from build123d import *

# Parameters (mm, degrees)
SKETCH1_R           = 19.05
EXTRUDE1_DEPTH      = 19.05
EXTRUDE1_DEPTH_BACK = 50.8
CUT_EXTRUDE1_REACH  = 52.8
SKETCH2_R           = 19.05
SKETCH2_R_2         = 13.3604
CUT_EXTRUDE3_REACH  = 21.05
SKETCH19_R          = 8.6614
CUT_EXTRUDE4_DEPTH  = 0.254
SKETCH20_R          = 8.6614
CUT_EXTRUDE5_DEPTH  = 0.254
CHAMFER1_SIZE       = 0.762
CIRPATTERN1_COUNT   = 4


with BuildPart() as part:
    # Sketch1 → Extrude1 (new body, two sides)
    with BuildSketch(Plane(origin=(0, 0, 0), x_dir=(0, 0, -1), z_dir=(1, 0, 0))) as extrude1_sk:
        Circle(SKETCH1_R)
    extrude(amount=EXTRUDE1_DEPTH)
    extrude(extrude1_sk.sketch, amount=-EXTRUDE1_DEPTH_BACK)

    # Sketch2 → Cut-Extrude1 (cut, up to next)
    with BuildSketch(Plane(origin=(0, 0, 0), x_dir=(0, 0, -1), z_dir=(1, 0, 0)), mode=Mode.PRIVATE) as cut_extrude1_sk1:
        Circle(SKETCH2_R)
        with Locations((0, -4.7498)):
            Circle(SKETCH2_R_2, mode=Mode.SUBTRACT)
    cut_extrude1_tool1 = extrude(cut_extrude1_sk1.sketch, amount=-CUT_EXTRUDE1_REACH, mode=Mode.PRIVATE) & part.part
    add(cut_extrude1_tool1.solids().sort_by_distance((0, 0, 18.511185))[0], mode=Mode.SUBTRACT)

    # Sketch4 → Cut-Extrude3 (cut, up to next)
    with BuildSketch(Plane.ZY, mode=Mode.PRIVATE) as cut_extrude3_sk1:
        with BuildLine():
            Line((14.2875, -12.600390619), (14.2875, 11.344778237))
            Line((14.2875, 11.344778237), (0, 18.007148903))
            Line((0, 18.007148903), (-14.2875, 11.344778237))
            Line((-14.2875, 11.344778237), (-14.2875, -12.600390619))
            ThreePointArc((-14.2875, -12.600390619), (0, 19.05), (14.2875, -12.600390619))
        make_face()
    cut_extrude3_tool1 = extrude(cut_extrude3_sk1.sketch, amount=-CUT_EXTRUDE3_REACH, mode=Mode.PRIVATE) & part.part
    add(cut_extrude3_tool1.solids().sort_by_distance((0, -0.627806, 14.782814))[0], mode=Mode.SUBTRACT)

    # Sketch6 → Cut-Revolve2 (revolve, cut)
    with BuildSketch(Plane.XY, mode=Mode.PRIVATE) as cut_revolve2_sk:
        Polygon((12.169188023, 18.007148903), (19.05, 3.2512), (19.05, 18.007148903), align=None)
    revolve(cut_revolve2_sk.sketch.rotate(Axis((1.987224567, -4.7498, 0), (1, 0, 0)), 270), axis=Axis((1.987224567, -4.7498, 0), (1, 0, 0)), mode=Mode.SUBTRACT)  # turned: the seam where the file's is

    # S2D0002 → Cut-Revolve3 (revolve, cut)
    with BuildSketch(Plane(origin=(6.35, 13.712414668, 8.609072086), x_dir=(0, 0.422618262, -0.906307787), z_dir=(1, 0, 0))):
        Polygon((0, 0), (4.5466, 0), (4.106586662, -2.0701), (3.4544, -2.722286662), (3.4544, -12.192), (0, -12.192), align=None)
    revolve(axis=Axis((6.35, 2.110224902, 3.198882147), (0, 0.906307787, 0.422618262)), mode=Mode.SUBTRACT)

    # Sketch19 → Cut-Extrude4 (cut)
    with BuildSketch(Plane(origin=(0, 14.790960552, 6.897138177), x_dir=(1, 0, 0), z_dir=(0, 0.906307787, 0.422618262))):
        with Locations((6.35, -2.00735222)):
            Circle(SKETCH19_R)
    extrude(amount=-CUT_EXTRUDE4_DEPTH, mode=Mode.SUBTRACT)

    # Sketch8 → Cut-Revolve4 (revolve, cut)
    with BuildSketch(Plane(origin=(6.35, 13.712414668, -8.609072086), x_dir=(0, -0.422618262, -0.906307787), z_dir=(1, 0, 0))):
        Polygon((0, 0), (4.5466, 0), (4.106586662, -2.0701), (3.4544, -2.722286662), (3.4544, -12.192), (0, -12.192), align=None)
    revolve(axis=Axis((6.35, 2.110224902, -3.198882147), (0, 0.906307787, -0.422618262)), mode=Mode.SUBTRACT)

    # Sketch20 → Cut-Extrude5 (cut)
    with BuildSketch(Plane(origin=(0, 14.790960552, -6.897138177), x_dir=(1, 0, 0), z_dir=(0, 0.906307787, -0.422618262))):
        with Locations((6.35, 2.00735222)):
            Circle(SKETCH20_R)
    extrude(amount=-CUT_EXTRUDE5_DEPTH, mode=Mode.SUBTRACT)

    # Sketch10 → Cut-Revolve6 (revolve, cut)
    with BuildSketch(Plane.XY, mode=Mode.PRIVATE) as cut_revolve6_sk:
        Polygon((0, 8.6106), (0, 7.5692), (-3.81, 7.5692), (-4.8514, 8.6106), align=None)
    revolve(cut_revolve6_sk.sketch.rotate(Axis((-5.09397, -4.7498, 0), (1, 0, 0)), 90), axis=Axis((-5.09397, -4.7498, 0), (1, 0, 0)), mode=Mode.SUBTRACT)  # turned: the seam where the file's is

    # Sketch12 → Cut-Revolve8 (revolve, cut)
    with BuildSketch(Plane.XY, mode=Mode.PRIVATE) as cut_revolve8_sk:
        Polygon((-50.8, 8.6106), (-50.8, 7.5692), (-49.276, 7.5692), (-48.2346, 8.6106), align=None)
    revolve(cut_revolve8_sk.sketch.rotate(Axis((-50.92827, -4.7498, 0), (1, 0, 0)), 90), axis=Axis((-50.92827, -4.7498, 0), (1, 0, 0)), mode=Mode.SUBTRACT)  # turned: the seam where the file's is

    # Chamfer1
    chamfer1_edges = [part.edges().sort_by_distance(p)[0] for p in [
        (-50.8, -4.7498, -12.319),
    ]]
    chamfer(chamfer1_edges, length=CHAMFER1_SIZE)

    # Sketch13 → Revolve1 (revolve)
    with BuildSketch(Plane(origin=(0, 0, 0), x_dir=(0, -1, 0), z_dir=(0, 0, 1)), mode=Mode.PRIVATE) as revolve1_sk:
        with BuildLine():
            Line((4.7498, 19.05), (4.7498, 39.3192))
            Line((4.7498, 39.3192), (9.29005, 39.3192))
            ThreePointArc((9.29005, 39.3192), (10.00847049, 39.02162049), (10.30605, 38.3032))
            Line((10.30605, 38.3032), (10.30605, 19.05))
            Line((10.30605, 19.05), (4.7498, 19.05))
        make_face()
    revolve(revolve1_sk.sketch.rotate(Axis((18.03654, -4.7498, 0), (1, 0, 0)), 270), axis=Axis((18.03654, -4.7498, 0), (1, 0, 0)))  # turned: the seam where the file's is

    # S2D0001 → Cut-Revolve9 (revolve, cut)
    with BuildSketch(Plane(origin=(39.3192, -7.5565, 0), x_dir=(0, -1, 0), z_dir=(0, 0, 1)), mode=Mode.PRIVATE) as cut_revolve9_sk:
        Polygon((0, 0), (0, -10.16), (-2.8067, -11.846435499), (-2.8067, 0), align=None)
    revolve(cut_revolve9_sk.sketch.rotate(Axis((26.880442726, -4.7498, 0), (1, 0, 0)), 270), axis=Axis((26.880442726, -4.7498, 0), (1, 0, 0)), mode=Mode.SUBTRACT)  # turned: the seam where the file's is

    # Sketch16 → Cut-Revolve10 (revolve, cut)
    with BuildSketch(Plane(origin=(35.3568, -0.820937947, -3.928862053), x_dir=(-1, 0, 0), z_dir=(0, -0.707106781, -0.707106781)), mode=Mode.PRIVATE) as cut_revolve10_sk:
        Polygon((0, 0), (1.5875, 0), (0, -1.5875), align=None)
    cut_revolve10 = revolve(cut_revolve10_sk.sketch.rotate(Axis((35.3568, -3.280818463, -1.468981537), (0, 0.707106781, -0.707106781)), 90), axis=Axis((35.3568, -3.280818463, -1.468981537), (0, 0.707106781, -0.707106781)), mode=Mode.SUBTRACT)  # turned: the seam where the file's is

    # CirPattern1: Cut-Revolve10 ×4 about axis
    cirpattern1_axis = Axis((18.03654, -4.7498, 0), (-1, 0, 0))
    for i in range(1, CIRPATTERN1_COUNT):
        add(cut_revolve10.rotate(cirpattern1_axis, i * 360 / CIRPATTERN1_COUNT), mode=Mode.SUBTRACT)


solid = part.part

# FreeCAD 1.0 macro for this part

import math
import FreeCAD as App
import Part
import Sketcher
Q = App.Units.Quantity


def edges_at(feature, points):
    """Names of the edges that pass closest to the given points."""
    edges = feature.Shape.Edges
    near = lambda p: min(range(len(edges)), key=lambda i: edges[i].distToShape(Part.Vertex(*p))[0])
    return sorted({f"Edge{near(p) + 1}" for p in points})


def add_polygon(sketch, points):
    """Adds a closed chain of lines whose ends are joined by coincident constraints."""
    first, n = sketch.GeometryCount, len(points)
    for a, b in zip(points, points[1:] + points[:1]):
        sketch.addGeometry(Part.LineSegment(App.Vector(*a, 0), App.Vector(*b, 0)), False)
    for i in range(n):
        sketch.addConstraint(Sketcher.Constraint("Coincident", first + i, 2, first + (i + 1) % n, 1))

doc = App.newDocument("Part")
body = doc.addObject("PartDesign::Body", "Body")

# Sketch on YZ plane
sketch1 = body.newObject("Sketcher::SketchObject", "Sketch")
sketch1.AttachmentSupport = (doc.getObject("YZ_Plane"), [""])
sketch1.MapMode = "FlatFace"
sketch1.addGeometry(Part.Circle(App.Vector(0, 0, 0), App.Vector(0, 0, 1), 19.05), False)
sketch1.addConstraint([
    Sketcher.Constraint("Coincident", 0, 3, -1, 1),
    Sketcher.Constraint("Diameter", 0, Q("1.5 in")),
])
pad1 = body.newObject("PartDesign::Pad", "Pad")
pad1.Profile = sketch1
pad1.Type = "TwoLengths"
pad1.Length = Q("0.75 in")
pad1.Length2 = Q("2 in")

# Sketch on YZ plane
sketch2 = body.newObject("Sketcher::SketchObject", "Sketch001")
sketch2.AttachmentSupport = (doc.getObject("YZ_Plane"), [""])
sketch2.MapMode = "FlatFace"
sketch2.addGeometry([
    Part.Circle(App.Vector(0, 0, 0), App.Vector(0, 0, 1), 19.05),
    Part.Circle(App.Vector(-4.7498, 0, 0), App.Vector(0, 0, 1), 13.3604),
], False)
sketch2.addConstraint([
    Sketcher.Constraint("Coincident", 0, 3, -1, 1),
    Sketcher.Constraint("PointOnObject", 1, 3, -1),
    Sketcher.Constraint("Diameter", 0, Q("1.5 in")),
    Sketcher.Constraint("Diameter", 1, Q("1.052 in")),
    Sketcher.Constraint("DistanceX", 1, 3, -1, 1, Q("0.187 in")),
])
pocket1 = body.newObject("PartDesign::Pocket", "Pocket")
pocket1.Profile = sketch2
pocket1.Type = "UpToFirst"

# Sketch on YZ plane
sketch3 = body.newObject("Sketcher::SketchObject", "Sketch002")
sketch3.AttachmentSupport = (doc.getObject("YZ_Plane"), [""])
sketch3.MapMode = "FlatFace"
sketch3.addGeometry([
    Part.LineSegment(App.Vector(11.344778, 14.2875, 0), App.Vector(-12.600391, 14.2875, 0)),  # 0
    Part.ArcOfCircle(Part.Circle(App.Vector(0, 0, 0), App.Vector(0, 0, 1), 19.05), math.radians(-131.409622), math.radians(131.409622)),  # 1
    Part.LineSegment(App.Vector(-12.600391, -14.2875, 0), App.Vector(11.344778, -14.2875, 0)),  # 2
    Part.LineSegment(App.Vector(11.344778, -14.2875, 0), App.Vector(18.007149, 0, 0)),  # 3
    Part.LineSegment(App.Vector(18.007149, 0, 0), App.Vector(11.344778, 14.2875, 0)),  # 4
], False)
sketch3.addConstraint([
    Sketcher.Constraint("Coincident", 0, 2, 1, 2),
    Sketcher.Constraint("Coincident", 1, 1, 2, 1),
    Sketcher.Constraint("Coincident", 2, 2, 3, 1),
    Sketcher.Constraint("Coincident", 3, 2, 4, 1),
    Sketcher.Constraint("Coincident", 4, 2, 0, 1),
    Sketcher.Constraint("Horizontal", 0),
    Sketcher.Constraint("Horizontal", 2),
    Sketcher.Constraint("Coincident", 1, 3, -1, 1),
    Sketcher.Constraint("Symmetric", 2, 2, 4, 2, -1),
    Sketcher.Constraint("PointOnObject", 3, 2, -1),
    Sketcher.Constraint("Radius", 1, Q("0.75 in")),
    Sketcher.Constraint("Angle", 3, Q("65 deg")),
    Sketcher.Constraint("DistanceY", -1, 1, 0, 2, Q("0.5625 in")),
    Sketcher.Constraint("DistanceX", 0, 2, 0, 1, 23.945169),
])
pocket2 = body.newObject("PartDesign::Pocket", "Pocket001")
pocket2.Profile = sketch3
pocket2.Type = "UpToFirst"
pocket2.Reversed = True

# Sketch on XY plane
sketch4 = body.newObject("Sketcher::SketchObject", "Sketch003")
sketch4.AttachmentSupport = (doc.getObject("XY_Plane"), [""])
sketch4.MapMode = "FlatFace"
add_polygon(sketch4, [(12.169188, 18.007149), (19.05, 3.2512), (19.05, 18.007149)])  # lines 0-2
sketch4.addGeometry(Part.LineSegment(App.Vector(12.169188, -4.7498, 0), App.Vector(19.05, -4.7498, 0)), True)  # axis
sketch4.addConstraint([
    Sketcher.Constraint("Vertical", 1),
    Sketcher.Constraint("Horizontal", 2),
    Sketcher.Constraint("Horizontal", 3),
    Sketcher.Constraint("Vertical", 2, 2, 3, 1),
    Sketcher.Constraint("Vertical", 1, 2, 3, 2),
    Sketcher.Constraint("Angle", 0, Q("-65 deg")),
    Sketcher.Constraint("DistanceX", -1, 1, 0, 2, Q("0.75 in")),
    Sketcher.Constraint("DistanceY", -1, 1, 0, 2, Q("0.128 in")),
    Sketcher.Constraint("DistanceY", 3, 1, -1, 1, Q("0.187 in")),
    Sketcher.Constraint("DistanceX", 2, 2, 2, 1, 6.880812),
])
groove = body.newObject("PartDesign::Groove", "Groove")
groove.Profile = sketch4
groove.ReferenceAxis = (sketch4, ["Axis0"])
groove.Angle = 360

# Sketch on YZ plane
sketch5 = body.newObject("Sketcher::SketchObject", "Sketch004")
sketch5.AttachmentSupport = (doc.getObject("YZ_Plane"), [""])
sketch5.MapMode = "FlatFace"
sketch5.AttachmentOffset = App.Placement(App.Vector(0, 0, 0.25 * 25.4), App.Rotation())
add_polygon(sketch5, [(15.633891, 4.488453), (13.712415, 8.609072), (2.66271, 3.45651), (4.122603, 0.325761), (12.705078, 4.327834), (13.571785, 4.012379)])  # lines 0-5
sketch5.addGeometry(Part.LineSegment(App.Vector(2.66271, 3.45651, 0), App.Vector(13.712415, 8.609072, 0)), True)  # axis
sketch5.addConstraint([
    Sketcher.Constraint("Coincident", 6, 1, 1, 2),
    Sketcher.Constraint("Coincident", 6, 2, 0, 2),
    Sketcher.Constraint("Perpendicular", 0, 1),
    Sketcher.Constraint("Perpendicular", 1, 2),
    Sketcher.Constraint("Perpendicular", 2, 3),
    Sketcher.Constraint("Angle", 0, Q("115 deg")),
    Sketcher.Constraint("Angle", 4, Q("-20 deg")),
    Sketcher.Constraint("Angle", 5, Q("13 deg")),
    Sketcher.Constraint("Distance", 1, Q("0.48 in")),
    Sketcher.Constraint("Distance", 0, Q("0.179 in")),
    Sketcher.Constraint("Distance", 2, Q("0.136 in")),
    Sketcher.Constraint("DistanceX", -1, 1, 3, 2, Q("0.5001999 in")),
    Sketcher.Constraint("Distance", 4, 0.922331),
    Sketcher.Constraint("DistanceY", -1, 1, 1, 2, 3.45651),
])
groove2 = body.newObject("PartDesign::Groove", "Groove001")
groove2.Profile = sketch5
groove2.ReferenceAxis = (sketch5, ["Axis0"])
groove2.Angle = 360

# Sketch on an angled plane
sketch6 = body.newObject("Sketcher::SketchObject", "Sketch005")
sketch6.Placement = App.Placement(App.Vector(0, 14.790961, 6.897138), App.Rotation(App.Vector(1, 0, 0), App.Vector(0, 0.422618262, -0.906307787), App.Vector(0, 0.906307787, 0.422618262), "ZXY"))
sketch6.addGeometry(Part.Circle(App.Vector(6.35, -2.007352, 0), App.Vector(0, 0, 1), 8.6614), False)
sketch6.addConstraint([
    Sketcher.Constraint("Diameter", 0, Q("0.682 in")),
    Sketcher.Constraint("DistanceX", -1, 1, 0, 3, Q("0.25 in")),
    Sketcher.Constraint("DistanceY", 0, 3, -1, 1, 2.007352),
])
pocket3 = body.newObject("PartDesign::Pocket", "Pocket002")
pocket3.Profile = sketch6
pocket3.Length = Q("0.01 in")

# Sketch on YZ plane
sketch7 = body.newObject("Sketcher::SketchObject", "Sketch006")
sketch7.AttachmentSupport = (doc.getObject("YZ_Plane"), [""])
sketch7.MapMode = "FlatFace"
sketch7.AttachmentOffset = App.Placement(App.Vector(0, 0, 0.25 * 25.4), App.Rotation())
add_polygon(sketch7, [(11.790938, -12.729691), (13.712415, -8.609072), (2.66271, -3.45651), (1.202818, -6.58726), (9.785293, -10.589334), (10.100748, -11.456041)])  # lines 0-5
sketch7.addGeometry(Part.LineSegment(App.Vector(2.66271, -3.45651, 0), App.Vector(13.712415, -8.609072, 0)), True)  # axis
sketch7.addConstraint([
    Sketcher.Constraint("Coincident", 6, 1, 1, 2),
    Sketcher.Constraint("Coincident", 6, 2, 0, 2),
    Sketcher.Constraint("Perpendicular", 0, 1),
    Sketcher.Constraint("Perpendicular", 1, 2),
    Sketcher.Constraint("Perpendicular", 2, 3),
    Sketcher.Constraint("Angle", 0, Q("65 deg")),
    Sketcher.Constraint("Angle", 4, Q("-70 deg")),
    Sketcher.Constraint("Angle", 5, Q("-37 deg")),
    Sketcher.Constraint("Distance", 1, Q("0.48 in")),
    Sketcher.Constraint("Distance", 0, Q("0.179 in")),
    Sketcher.Constraint("Distance", 2, Q("0.136 in")),
    Sketcher.Constraint("Distance", 4, 0.922331),
    Sketcher.Constraint("DistanceX", -1, 1, 1, 2, 2.66271),
    Sketcher.Constraint("DistanceY", 1, 2, -1, 1, 3.45651),
])
groove3 = body.newObject("PartDesign::Groove", "Groove002")
groove3.Profile = sketch7
groove3.ReferenceAxis = (sketch7, ["Axis0"])
groove3.Angle = 360

# Sketch on an angled plane
sketch8 = body.newObject("Sketcher::SketchObject", "Sketch007")
sketch8.Placement = App.Placement(App.Vector(0, 14.790961, -6.897138), App.Rotation(App.Vector(1, 0, 0), App.Vector(0, -0.422618262, -0.906307787), App.Vector(0, 0.906307787, -0.422618262), "ZXY"))
sketch8.addGeometry(Part.Circle(App.Vector(6.35, 2.007352, 0), App.Vector(0, 0, 1), 8.6614), False)
sketch8.addConstraint([
    Sketcher.Constraint("Diameter", 0, Q("0.682 in")),
    Sketcher.Constraint("DistanceX", -1, 1, 0, 3, Q("0.25 in")),
    Sketcher.Constraint("DistanceY", -1, 1, 0, 3, 2.007352),
])
pocket4 = body.newObject("PartDesign::Pocket", "Pocket003")
pocket4.Profile = sketch8
pocket4.Length = Q("0.01 in")

# Sketch on XY plane
sketch9 = body.newObject("Sketcher::SketchObject", "Sketch008")
sketch9.AttachmentSupport = (doc.getObject("XY_Plane"), [""])
sketch9.MapMode = "FlatFace"
add_polygon(sketch9, [(0, 7.5692), (0, 8.6106), (-4.8514, 8.6106), (-3.81, 7.5692)])  # lines 0-3
sketch9.addGeometry(Part.LineSegment(App.Vector(-4.8514, -4.7498, 0), App.Vector(0, -4.7498, 0)), True)  # axis
sketch9.addConstraint([
    Sketcher.Constraint("Vertical", 0),
    Sketcher.Constraint("Horizontal", 1),
    Sketcher.Constraint("Horizontal", 3),
    Sketcher.Constraint("Horizontal", 4),
    Sketcher.Constraint("PointOnObject", 0, 2, -2),
    Sketcher.Constraint("PointOnObject", 4, 2, -2),
    Sketcher.Constraint("Vertical", 1, 2, 4, 1),
    Sketcher.Constraint("Angle", 2, Q("-45 deg")),
    Sketcher.Constraint("DistanceX", 3, 1, 3, 2, Q("0.15 in")),
    Sketcher.Constraint("DistanceX", 1, 2, 1, 1, Q("0.191 in")),
    Sketcher.Constraint("DistanceY", -1, 1, 0, 2, Q("0.339 in")),
    Sketcher.Constraint("DistanceY", 4, 1, -1, 1, Q("0.187 in")),
])
groove4 = body.newObject("PartDesign::Groove", "Groove003")
groove4.Profile = sketch9
groove4.ReferenceAxis = (sketch9, ["Axis0"])
groove4.Angle = 360

# Sketch on XY plane
sketch10 = body.newObject("Sketcher::SketchObject", "Sketch009")
sketch10.AttachmentSupport = (doc.getObject("XY_Plane"), [""])
sketch10.MapMode = "FlatFace"
add_polygon(sketch10, [(-50.8, 8.6106), (-50.8, 7.5692), (-49.276, 7.5692), (-48.2346, 8.6106)])  # lines 0-3
sketch10.addGeometry(Part.LineSegment(App.Vector(-50.8, -4.7498, 0), App.Vector(-48.2346, -4.7498, 0)), True)  # axis
sketch10.addConstraint([
    Sketcher.Constraint("Vertical", 0),
    Sketcher.Constraint("Horizontal", 1),
    Sketcher.Constraint("Horizontal", 3),
    Sketcher.Constraint("Horizontal", 4),
    Sketcher.Constraint("Vertical", 3, 2, 4, 1),
    Sketcher.Constraint("Vertical", 2, 2, 4, 2),
    Sketcher.Constraint("DistanceX", 0, 2, -1, 1, Q("2 in")),
    Sketcher.Constraint("Angle", 2, Q("45 deg")),
    Sketcher.Constraint("DistanceX", 1, 1, 1, 2, Q("0.06 in")),
    Sketcher.Constraint("DistanceX", 3, 2, 3, 1, Q("0.101 in")),
    Sketcher.Constraint("DistanceY", -1, 1, 0, 2, Q("0.298 in")),
    Sketcher.Constraint("DistanceY", 4, 1, -1, 1, Q("0.187 in")),
])
groove5 = body.newObject("PartDesign::Groove", "Groove004")
groove5.Profile = sketch10
groove5.ReferenceAxis = (sketch10, ["Axis0"])
groove5.Angle = 360
doc.recompute()

chamfer = body.newObject("PartDesign::Chamfer", "Chamfer")
chamfer.Base = (groove5, edges_at(groove5, [(-50.8, -4.75, -12.319)]))
chamfer.Size = Q("0.03 in")

# Sketch on XY plane
sketch11 = body.newObject("Sketcher::SketchObject", "Sketch010")
sketch11.AttachmentSupport = (doc.getObject("XY_Plane"), [""])
sketch11.MapMode = "FlatFace"
sketch11.addGeometry([
    Part.LineSegment(App.Vector(39.3192, -4.7498, 0), App.Vector(19.05, -4.7498, 0)),  # 0
    Part.LineSegment(App.Vector(19.05, -4.7498, 0), App.Vector(19.05, -10.30605, 0)),  # 1
    Part.LineSegment(App.Vector(19.05, -10.30605, 0), App.Vector(38.3032, -10.30605, 0)),  # 2
    Part.ArcOfCircle(Part.Circle(App.Vector(38.3032, -9.29005, 0), App.Vector(0, 0, 1), 1.016), math.radians(-90), math.radians(0)),  # 3
    Part.LineSegment(App.Vector(39.3192, -9.29005, 0), App.Vector(39.3192, -4.7498, 0)),  # 4
], False)
sketch11.addGeometry(Part.LineSegment(App.Vector(19.05, -4.7498, 0), App.Vector(39.3192, -4.7498, 0)), True)  # axis
sketch11.addConstraint([
    Sketcher.Constraint("Coincident", 0, 2, 1, 1),
    Sketcher.Constraint("Coincident", 1, 2, 2, 1),
    Sketcher.Constraint("Tangent", 2, 2, 3, 1),
    Sketcher.Constraint("Tangent", 3, 2, 4, 1),
    Sketcher.Constraint("Coincident", 4, 2, 0, 1),
    Sketcher.Constraint("Horizontal", 0),
    Sketcher.Constraint("Vertical", 1),
    Sketcher.Constraint("Horizontal", 2),
    Sketcher.Constraint("Vertical", 4),
    Sketcher.Constraint("Horizontal", 5),
    Sketcher.Constraint("Coincident", 5, 1, 0, 2),
    Sketcher.Constraint("Vertical", 3, 2, 5, 2),
    Sketcher.Constraint("Radius", 3, Q("0.04 in")),
    Sketcher.Constraint("DistanceX", 0, 2, 0, 1, Q("0.798 in")),
    Sketcher.Constraint("DistanceY", 1, 2, 1, 1, Q("0.21875 in")),
    Sketcher.Constraint("DistanceX", -1, 1, 0, 2, Q("0.75 in")),
    Sketcher.Constraint("DistanceY", 0, 2, -1, 1, Q("0.187 in")),
])
revolution = body.newObject("PartDesign::Revolution", "Revolution")
revolution.Profile = sketch11
revolution.ReferenceAxis = (sketch11, ["Axis0"])
revolution.Angle = 360

# Sketch on XY plane
sketch12 = body.newObject("Sketcher::SketchObject", "Sketch011")
sketch12.AttachmentSupport = (doc.getObject("XY_Plane"), [""])
sketch12.MapMode = "FlatFace"
add_polygon(sketch12, [(29.1592, -7.5565), (39.3192, -7.5565), (39.3192, -4.7498), (27.472765, -4.7498)])  # lines 0-3
sketch12.addGeometry(Part.LineSegment(App.Vector(27.472765, -4.7498, 0), App.Vector(39.3192, -4.7498, 0)), True)  # axis
sketch12.addConstraint([
    Sketcher.Constraint("Horizontal", 0),
    Sketcher.Constraint("Vertical", 1),
    Sketcher.Constraint("Horizontal", 2),
    Sketcher.Constraint("Horizontal", 4),
    Sketcher.Constraint("Coincident", 4, 1, 2, 2),
    Sketcher.Constraint("Vertical", 0, 2, 4, 2),
    Sketcher.Constraint("DistanceX", 0, 1, 0, 2, Q("0.4 in")),
    Sketcher.Constraint("Angle", 3, Q("-59 deg")),
    Sketcher.Constraint("DistanceY", 1, 1, 1, 2, Q("0.1105 in")),
    Sketcher.Constraint("DistanceX", -1, 1, 0, 2, Q("1.548 in")),
    Sketcher.Constraint("DistanceY", 1, 2, -1, 1, Q("0.187 in")),
])
groove6 = body.newObject("PartDesign::Groove", "Groove005")
groove6.Profile = sketch12
groove6.ReferenceAxis = (sketch12, ["Axis0"])
groove6.Angle = 360

# Sketch on an angled plane
sketch13 = body.newObject("Sketcher::SketchObject", "Sketch012")
sketch13.Placement = App.Placement(App.Vector(35.3568, -0.820938, -3.928862), App.Rotation(App.Vector(-1, 0, 0), App.Vector(0, 0.707106781, -0.707106781), App.Vector(0, -0.707106781, -0.707106781), "ZXY"))
add_polygon(sketch13, [(1.5875, 0), (0, 0), (0, -1.5875)])  # lines 0-2
sketch13.addConstraint([
    Sketcher.Constraint("Horizontal", 0),
    Sketcher.Constraint("Vertical", 1),
    Sketcher.Constraint("Coincident", 0, 2, -1, 1),
    Sketcher.Constraint("Equal", 0, 1),
    Sketcher.Constraint("DistanceX", 0, 2, 0, 1, Q("0.0625 in")),
])
groove7 = body.newObject("PartDesign::Groove", "Groove006")
groove7.Profile = sketch13
groove7.ReferenceAxis = (sketch13, ["V_Axis"])
groove7.Angle = 360
doc.recompute()

datumline = body.newObject("PartDesign::Line", "DatumLine")
datumline.Placement = App.Placement(App.Vector(0, -4.7498, 0), App.Rotation(App.Vector(0, 0, 1), App.Vector(-1, 0, 0)))
polarpattern = body.newObject("PartDesign::PolarPattern", "PolarPattern")
polarpattern.Originals = [groove7]
polarpattern.Axis = (datumline, [""])
polarpattern.Angle = 360
polarpattern.Occurrences = 4
body.Tip = polarpattern

doc.recompute()
